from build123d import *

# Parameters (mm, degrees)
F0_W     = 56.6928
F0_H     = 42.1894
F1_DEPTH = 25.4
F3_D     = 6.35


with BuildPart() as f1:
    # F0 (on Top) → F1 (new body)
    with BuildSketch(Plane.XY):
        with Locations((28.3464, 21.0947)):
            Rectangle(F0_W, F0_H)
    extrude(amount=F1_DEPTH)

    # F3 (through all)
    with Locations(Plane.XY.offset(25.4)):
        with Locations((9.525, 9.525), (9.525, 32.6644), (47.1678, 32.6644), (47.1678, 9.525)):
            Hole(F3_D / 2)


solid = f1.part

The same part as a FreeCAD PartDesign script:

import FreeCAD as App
import Part
import Sketcher

V = App.Vector
Q = App.Units.Quantity

doc = App.newDocument("Part")
params = doc.addObject("Spreadsheet::Sheet", "Params")
for row, (alias, value) in enumerate([
    ("sketch1_width", "2.232 in"),
    ("sketch1_height", "1.661 in"),
    ("pad1_length", "1 in"),
    ("sketch2_diameter", "0.25 in"),
    ("hole_diameter", "0.25 in"),
], start=1):
    params.set(f"A{row}", alias)
    params.set(f"B{row}", "=" + value)
    params.setAlias(f"B{row}", alias)

body = doc.addObject("PartDesign::Body", "Body")

# Sketch on XY plane
sketch1 = body.newObject("Sketcher::SketchObject", "Sketch")
sketch1.AttachmentSupport = (doc.getObject("XY_Plane"), [""])
sketch1.MapMode = "FlatFace"
sketch1.addGeometry([
    Part.LineSegment(V(0, 42.1894, 0), V(0, 0, 0)),
    Part.LineSegment(V(0, 0, 0), V(56.6928, 0, 0)),
    Part.LineSegment(V(56.6928, 0, 0), V(56.6928, 42.1894, 0)),
    Part.LineSegment(V(56.6928, 42.1894, 0), V(0, 42.1894, 0)),
], False)
sketch1.addConstraint([
    Sketcher.Constraint("Coincident", 0, 2, 1, 1),
    Sketcher.Constraint("Coincident", 1, 2, 2, 1),
    Sketcher.Constraint("Coincident", 2, 2, 3, 1),
    Sketcher.Constraint("Coincident", 3, 2, 0, 1),
    Sketcher.Constraint("Vertical", 0),
    Sketcher.Constraint("Horizontal", 1),
    Sketcher.Constraint("Vertical", 2),
    Sketcher.Constraint("Horizontal", 3),
    Sketcher.Constraint("Coincident", 0, 2, -1, 1),
    Sketcher.Constraint("DistanceX", 1, 1, 1, 2, Q("2.232 in")),
    Sketcher.Constraint("DistanceY", 0, 2, 0, 1, Q("1.661 in")),
])
sketch1.setExpression("Constraints[9]", "Params.sketch1_width")
sketch1.setExpression("Constraints[10]", "Params.sketch1_height")
pad1 = body.newObject("PartDesign::Pad", "Pad")
pad1.Profile = sketch1
pad1.setExpression("Length", "Params.pad1_length")

# Sketch on XY plane
sketch2 = body.newObject("Sketcher::SketchObject", "Sketch001")
sketch2.AttachmentSupport = (doc.getObject("XY_Plane"), [""])
sketch2.MapMode = "FlatFace"
sketch2.AttachmentOffset = App.Placement(V(0, 0, 1 * 25.4), App.Rotation())
sketch2.addGeometry([
    Part.Circle(V(9.525, 9.525, 0), V(0, 0, 1), 3.175),
    Part.Circle(V(9.525, 32.6644, 0), V(0, 0, 1), 3.175),
    Part.Circle(V(47.1678, 32.6644, 0), V(0, 0, 1), 3.175),
    Part.Circle(V(47.1678, 9.525, 0), V(0, 0, 1), 3.175),
], False)
sketch2.addConstraint([
    Sketcher.Constraint("Equal", 0, 1),
    Sketcher.Constraint("Equal", 1, 2),
    Sketcher.Constraint("Equal", 2, 3),
    Sketcher.Constraint("Horizontal", 1, 3, 2, 3),
    Sketcher.Constraint("Horizontal", 0, 3, 3, 3),
    Sketcher.Constraint("Vertical", 0, 3, 1, 3),
    Sketcher.Constraint("Vertical", 2, 3, 3, 3),
    Sketcher.Constraint("Diameter", 0, Q("0.25 in")),
    Sketcher.Constraint("DistanceX", -1, 1, 0, 3, Q("0.375 in")),
    Sketcher.Constraint("DistanceY", -1, 1, 0, 3, Q("0.375 in")),
    Sketcher.Constraint("DistanceY", -1, 1, 1, 3, Q("1.286 in")),
    Sketcher.Constraint("DistanceX", -1, 1, 2, 3, Q("1.857 in")),
])
sketch2.setExpression("Constraints[7]", "Params.sketch2_diameter")
doc.recompute()
hole = body.newObject("PartDesign::Hole", "Hole")
hole.Profile = sketch2
hole.ThreadType = "None"
hole.setExpression("Diameter", "Params.hole_diameter")
hole.DepthType = "ThroughAll"

doc.recompute()
